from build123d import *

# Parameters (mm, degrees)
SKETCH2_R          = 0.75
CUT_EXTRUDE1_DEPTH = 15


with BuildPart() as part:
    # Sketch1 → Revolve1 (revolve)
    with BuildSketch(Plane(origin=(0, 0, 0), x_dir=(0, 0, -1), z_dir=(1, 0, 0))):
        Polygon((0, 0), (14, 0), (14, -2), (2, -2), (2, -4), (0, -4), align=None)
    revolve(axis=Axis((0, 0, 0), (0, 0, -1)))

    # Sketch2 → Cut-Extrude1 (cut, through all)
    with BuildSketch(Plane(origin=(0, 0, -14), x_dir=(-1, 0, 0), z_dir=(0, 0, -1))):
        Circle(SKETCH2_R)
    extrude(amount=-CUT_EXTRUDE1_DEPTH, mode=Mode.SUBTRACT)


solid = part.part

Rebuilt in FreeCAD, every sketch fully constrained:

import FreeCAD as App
import Part
import Sketcher

V = App.Vector
Q = App.Units.Quantity


def add_polygon(sketch, points):
    """Adds a closed chain of lines whose ends are joined by coincident constraints."""
    first, n = sketch.GeometryCount, len(points)
    for a, b in zip(points, points[1:] + points[:1]):
        sketch.addGeometry(Part.LineSegment(App.Vector(*a, 0), App.Vector(*b, 0)), False)
    for i in range(n):
        sketch.addConstraint(Sketcher.Constraint("Coincident", first + i, 2, first + (i + 1) % n, 1))

doc = App.newDocument("Part")
params = doc.addObject("Spreadsheet::Sheet", "Params")
for row, (alias, value) in enumerate([
    ("sketch1_width", "4 mm"),
    ("sketch1_height", "14 mm"),
    ("revolution_angle", "360 deg"),
    ("sketch2_diameter", "1.5 mm"),
], start=1):
    params.set(f"A{row}", alias)
    params.set(f"B{row}", "=" + value)
    params.setAlias(f"B{row}", alias)

body = doc.addObject("PartDesign::Body", "Body")

# Sketch on YZ plane
sketch1 = body.newObject("Sketcher::SketchObject", "Sketch")
sketch1.AttachmentSupport = (doc.getObject("YZ_Plane"), [""])
sketch1.MapMode = "FlatFace"
add_polygon(sketch1, [(0, -14), (0, 0), (-4, 0), (-4, -2), (-2, -2), (-2, -14)])  # lines 0-5
sketch1.addConstraint(Sketcher.Constraint("Vertical", 0))
sketch1.addConstraint(Sketcher.Constraint("Horizontal", 1))
sketch1.addConstraint(Sketcher.Constraint("Vertical", 2))
sketch1.addConstraint(Sketcher.Constraint("Horizontal", 3))
sketch1.addConstraint(Sketcher.Constraint("Vertical", 4))
sketch1.addConstraint(Sketcher.Constraint("Horizontal", 5))
sketch1.addConstraint(Sketcher.Constraint("Coincident", 0, 2, -1, 1))
sketch1.addConstraint(Sketcher.Constraint("Equal", 3, 5))
sketch1.addConstraint(Sketcher.Constraint("Equal", 5, 2))
sketch1.addConstraint(Sketcher.Constraint("DistanceX", 1, 2, 1, 1, Q("4 mm")))
sketch1.addConstraint(Sketcher.Constraint("DistanceY", 0, 1, 0, 2, Q("14 mm")))
sketch1.setExpression("Constraints[15]", "Params.sketch1_width")
sketch1.setExpression("Constraints[16]", "Params.sketch1_height")
revolution = body.newObject("PartDesign::Revolution", "Revolution")
revolution.Profile = sketch1
revolution.ReferenceAxis = (sketch1, ["V_Axis"])
revolution.setExpression("Angle", "Params.revolution_angle")

# Sketch on XY plane
sketch2 = body.newObject("Sketcher::SketchObject", "Sketch001")
sketch2.AttachmentSupport = (doc.getObject("XY_Plane"), [""])
sketch2.MapMode = "FlatFace"
sketch2.AttachmentOffset = App.Placement(V(0, 0, -14), App.Rotation())
sketch2.addGeometry(Part.Circle(V(0, 0, 0), V(0, 0, 1), 0.8), False)
sketch2.addConstraint(Sketcher.Constraint("Coincident", 0, 3, -1, 1))
sketch2.addConstraint(Sketcher.Constraint("Diameter", 0, Q("1.5 mm")))
sketch2.setExpression("Constraints[1]", "Params.sketch2_diameter")
pocket1 = body.newObject("PartDesign::Pocket", "Pocket")
pocket1.Profile = sketch2
pocket1.Type = "ThroughAll"
pocket1.Reversed = True

doc.recompute()
